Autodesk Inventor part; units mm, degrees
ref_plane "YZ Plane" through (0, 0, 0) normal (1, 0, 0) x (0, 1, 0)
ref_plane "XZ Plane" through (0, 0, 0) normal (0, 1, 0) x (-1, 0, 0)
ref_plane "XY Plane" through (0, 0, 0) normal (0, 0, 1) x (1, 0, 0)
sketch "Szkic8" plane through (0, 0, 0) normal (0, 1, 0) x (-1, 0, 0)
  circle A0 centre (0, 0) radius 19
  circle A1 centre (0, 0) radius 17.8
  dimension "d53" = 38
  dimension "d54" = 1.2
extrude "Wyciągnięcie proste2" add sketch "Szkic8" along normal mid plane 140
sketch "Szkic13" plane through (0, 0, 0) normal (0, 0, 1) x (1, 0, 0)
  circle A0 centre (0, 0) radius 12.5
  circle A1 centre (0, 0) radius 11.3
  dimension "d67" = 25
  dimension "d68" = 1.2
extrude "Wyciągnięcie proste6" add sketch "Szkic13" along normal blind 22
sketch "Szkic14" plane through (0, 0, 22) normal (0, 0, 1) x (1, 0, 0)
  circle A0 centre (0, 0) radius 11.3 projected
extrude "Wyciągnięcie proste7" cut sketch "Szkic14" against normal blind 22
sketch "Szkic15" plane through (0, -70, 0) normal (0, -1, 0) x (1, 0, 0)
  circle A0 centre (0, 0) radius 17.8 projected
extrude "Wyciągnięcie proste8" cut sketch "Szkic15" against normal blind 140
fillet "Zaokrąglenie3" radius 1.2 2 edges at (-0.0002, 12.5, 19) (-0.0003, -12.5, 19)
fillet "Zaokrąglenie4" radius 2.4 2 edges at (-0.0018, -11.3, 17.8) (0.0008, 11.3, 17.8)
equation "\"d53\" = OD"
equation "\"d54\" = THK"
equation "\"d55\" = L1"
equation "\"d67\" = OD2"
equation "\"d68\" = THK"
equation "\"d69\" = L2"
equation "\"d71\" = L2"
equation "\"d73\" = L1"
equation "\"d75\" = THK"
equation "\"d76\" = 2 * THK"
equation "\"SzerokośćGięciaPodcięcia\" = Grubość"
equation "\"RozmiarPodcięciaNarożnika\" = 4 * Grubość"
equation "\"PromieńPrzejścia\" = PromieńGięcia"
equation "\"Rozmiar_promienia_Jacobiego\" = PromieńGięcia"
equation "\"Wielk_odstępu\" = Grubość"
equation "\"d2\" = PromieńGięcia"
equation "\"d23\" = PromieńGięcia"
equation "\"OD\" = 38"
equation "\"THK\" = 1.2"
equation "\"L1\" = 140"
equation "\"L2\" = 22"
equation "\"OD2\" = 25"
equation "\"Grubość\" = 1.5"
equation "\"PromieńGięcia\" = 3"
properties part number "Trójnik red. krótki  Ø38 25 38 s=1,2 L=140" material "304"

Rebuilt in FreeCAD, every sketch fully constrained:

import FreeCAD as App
import Part
import Sketcher

V = App.Vector
Q = App.Units.Quantity


def edges_at(feature, points):
    """Names of the edges that pass closest to the given points."""
    edges = feature.Shape.Edges
    near = lambda p: min(range(len(edges)), key=lambda i: edges[i].distToShape(Part.Vertex(*p))[0])
    return sorted({f"Edge{near(p) + 1}" for p in points})

doc = App.newDocument("Part")
body = doc.addObject("PartDesign::Body", "Body")

sketch1 = body.newObject("Sketcher::SketchObject", "Sketch")
sketch1.AttachmentSupport = (doc.getObject("XZ_Plane"), [""])
sketch1.MapMode = "FlatFace"
sketch1.addGeometry([
    Part.Circle(V(0, 0, 0), V(0, 0, 1), 19),
    Part.Circle(V(0, 0, 0), V(0, 0, 1), 18),
], False)
sketch1.addConstraint([
    Sketcher.Constraint("Coincident", 0, 3, -1, 1),
    Sketcher.Constraint("Coincident", 1, 3, -1, 1),
    Sketcher.Constraint("Diameter", 0, Q("38 mm")),
    Sketcher.Constraint("Diameter", 1, Q("35.6 mm")),
])
pad1 = body.newObject("PartDesign::Pad", "Pad")
pad1.Profile = sketch1
pad1.Length = 140
pad1.Midplane = True

sketch2 = body.newObject("Sketcher::SketchObject", "Sketch001")
sketch2.AttachmentSupport = (doc.getObject("XY_Plane"), [""])
sketch2.MapMode = "FlatFace"
sketch2.addGeometry([
    Part.Circle(V(0, 0, 0), V(0, 0, 1), 12),
    Part.Circle(V(0, 0, 0), V(0, 0, 1), 11),
], False)
sketch2.addConstraint([
    Sketcher.Constraint("Coincident", 0, 3, -1, 1),
    Sketcher.Constraint("Coincident", 1, 3, -1, 1),
    Sketcher.Constraint("Diameter", 0, Q("25 mm")),
    Sketcher.Constraint("Diameter", 1, Q("22.6 mm")),
])
pad2 = body.newObject("PartDesign::Pad", "Pad001")
pad2.Profile = sketch2
pad2.Length = 22

sketch3 = body.newObject("Sketcher::SketchObject", "Sketch002")
sketch3.AttachmentSupport = (doc.getObject("XY_Plane"), [""])
sketch3.MapMode = "FlatFace"
sketch3.AttachmentOffset = App.Placement(V(0, 0, 22), App.Rotation())
sketch3.addGeometry(Part.Circle(V(0, 0, 0), V(0, 0, 1), 11), False)
sketch3.addConstraint([
    Sketcher.Constraint("Coincident", 0, 3, -1, 1),
    Sketcher.Constraint("Diameter", 0, Q("22.6 mm")),
])
pocket1 = body.newObject("PartDesign::Pocket", "Pocket")
pocket1.Profile = sketch3
pocket1.Length = 22

sketch4 = body.newObject("Sketcher::SketchObject", "Sketch003")
sketch4.AttachmentSupport = (doc.getObject("XZ_Plane"), [""])
sketch4.MapMode = "FlatFace"
sketch4.AttachmentOffset = App.Placement(V(0, 0, 70), App.Rotation())
sketch4.addGeometry(Part.Circle(V(0, 0, 0), V(0, 0, 1), 18), False)
sketch4.addConstraint([
    Sketcher.Constraint("Coincident", 0, 3, -1, 1),
    Sketcher.Constraint("Diameter", 0, Q("35.6 mm")),
])
pocket2 = body.newObject("PartDesign::Pocket", "Pocket001")
pocket2.Profile = sketch4
pocket2.Length = 140
doc.recompute()

fillet = body.newObject("PartDesign::Fillet", "Fillet")
fillet.Base = (pocket2, edges_at(pocket2, [(0, 12.5, 19), (0, -12.5, 19)]))
fillet.Radius = 1.2
doc.recompute()

fillet2 = body.newObject("PartDesign::Fillet", "Fillet001")
fillet2.Base = (fillet, edges_at(fillet, [(-0.002, -11.3, 17.8), (0.001, 11.3, 17.8)]))
fillet2.Radius = 2.4

doc.recompute()
